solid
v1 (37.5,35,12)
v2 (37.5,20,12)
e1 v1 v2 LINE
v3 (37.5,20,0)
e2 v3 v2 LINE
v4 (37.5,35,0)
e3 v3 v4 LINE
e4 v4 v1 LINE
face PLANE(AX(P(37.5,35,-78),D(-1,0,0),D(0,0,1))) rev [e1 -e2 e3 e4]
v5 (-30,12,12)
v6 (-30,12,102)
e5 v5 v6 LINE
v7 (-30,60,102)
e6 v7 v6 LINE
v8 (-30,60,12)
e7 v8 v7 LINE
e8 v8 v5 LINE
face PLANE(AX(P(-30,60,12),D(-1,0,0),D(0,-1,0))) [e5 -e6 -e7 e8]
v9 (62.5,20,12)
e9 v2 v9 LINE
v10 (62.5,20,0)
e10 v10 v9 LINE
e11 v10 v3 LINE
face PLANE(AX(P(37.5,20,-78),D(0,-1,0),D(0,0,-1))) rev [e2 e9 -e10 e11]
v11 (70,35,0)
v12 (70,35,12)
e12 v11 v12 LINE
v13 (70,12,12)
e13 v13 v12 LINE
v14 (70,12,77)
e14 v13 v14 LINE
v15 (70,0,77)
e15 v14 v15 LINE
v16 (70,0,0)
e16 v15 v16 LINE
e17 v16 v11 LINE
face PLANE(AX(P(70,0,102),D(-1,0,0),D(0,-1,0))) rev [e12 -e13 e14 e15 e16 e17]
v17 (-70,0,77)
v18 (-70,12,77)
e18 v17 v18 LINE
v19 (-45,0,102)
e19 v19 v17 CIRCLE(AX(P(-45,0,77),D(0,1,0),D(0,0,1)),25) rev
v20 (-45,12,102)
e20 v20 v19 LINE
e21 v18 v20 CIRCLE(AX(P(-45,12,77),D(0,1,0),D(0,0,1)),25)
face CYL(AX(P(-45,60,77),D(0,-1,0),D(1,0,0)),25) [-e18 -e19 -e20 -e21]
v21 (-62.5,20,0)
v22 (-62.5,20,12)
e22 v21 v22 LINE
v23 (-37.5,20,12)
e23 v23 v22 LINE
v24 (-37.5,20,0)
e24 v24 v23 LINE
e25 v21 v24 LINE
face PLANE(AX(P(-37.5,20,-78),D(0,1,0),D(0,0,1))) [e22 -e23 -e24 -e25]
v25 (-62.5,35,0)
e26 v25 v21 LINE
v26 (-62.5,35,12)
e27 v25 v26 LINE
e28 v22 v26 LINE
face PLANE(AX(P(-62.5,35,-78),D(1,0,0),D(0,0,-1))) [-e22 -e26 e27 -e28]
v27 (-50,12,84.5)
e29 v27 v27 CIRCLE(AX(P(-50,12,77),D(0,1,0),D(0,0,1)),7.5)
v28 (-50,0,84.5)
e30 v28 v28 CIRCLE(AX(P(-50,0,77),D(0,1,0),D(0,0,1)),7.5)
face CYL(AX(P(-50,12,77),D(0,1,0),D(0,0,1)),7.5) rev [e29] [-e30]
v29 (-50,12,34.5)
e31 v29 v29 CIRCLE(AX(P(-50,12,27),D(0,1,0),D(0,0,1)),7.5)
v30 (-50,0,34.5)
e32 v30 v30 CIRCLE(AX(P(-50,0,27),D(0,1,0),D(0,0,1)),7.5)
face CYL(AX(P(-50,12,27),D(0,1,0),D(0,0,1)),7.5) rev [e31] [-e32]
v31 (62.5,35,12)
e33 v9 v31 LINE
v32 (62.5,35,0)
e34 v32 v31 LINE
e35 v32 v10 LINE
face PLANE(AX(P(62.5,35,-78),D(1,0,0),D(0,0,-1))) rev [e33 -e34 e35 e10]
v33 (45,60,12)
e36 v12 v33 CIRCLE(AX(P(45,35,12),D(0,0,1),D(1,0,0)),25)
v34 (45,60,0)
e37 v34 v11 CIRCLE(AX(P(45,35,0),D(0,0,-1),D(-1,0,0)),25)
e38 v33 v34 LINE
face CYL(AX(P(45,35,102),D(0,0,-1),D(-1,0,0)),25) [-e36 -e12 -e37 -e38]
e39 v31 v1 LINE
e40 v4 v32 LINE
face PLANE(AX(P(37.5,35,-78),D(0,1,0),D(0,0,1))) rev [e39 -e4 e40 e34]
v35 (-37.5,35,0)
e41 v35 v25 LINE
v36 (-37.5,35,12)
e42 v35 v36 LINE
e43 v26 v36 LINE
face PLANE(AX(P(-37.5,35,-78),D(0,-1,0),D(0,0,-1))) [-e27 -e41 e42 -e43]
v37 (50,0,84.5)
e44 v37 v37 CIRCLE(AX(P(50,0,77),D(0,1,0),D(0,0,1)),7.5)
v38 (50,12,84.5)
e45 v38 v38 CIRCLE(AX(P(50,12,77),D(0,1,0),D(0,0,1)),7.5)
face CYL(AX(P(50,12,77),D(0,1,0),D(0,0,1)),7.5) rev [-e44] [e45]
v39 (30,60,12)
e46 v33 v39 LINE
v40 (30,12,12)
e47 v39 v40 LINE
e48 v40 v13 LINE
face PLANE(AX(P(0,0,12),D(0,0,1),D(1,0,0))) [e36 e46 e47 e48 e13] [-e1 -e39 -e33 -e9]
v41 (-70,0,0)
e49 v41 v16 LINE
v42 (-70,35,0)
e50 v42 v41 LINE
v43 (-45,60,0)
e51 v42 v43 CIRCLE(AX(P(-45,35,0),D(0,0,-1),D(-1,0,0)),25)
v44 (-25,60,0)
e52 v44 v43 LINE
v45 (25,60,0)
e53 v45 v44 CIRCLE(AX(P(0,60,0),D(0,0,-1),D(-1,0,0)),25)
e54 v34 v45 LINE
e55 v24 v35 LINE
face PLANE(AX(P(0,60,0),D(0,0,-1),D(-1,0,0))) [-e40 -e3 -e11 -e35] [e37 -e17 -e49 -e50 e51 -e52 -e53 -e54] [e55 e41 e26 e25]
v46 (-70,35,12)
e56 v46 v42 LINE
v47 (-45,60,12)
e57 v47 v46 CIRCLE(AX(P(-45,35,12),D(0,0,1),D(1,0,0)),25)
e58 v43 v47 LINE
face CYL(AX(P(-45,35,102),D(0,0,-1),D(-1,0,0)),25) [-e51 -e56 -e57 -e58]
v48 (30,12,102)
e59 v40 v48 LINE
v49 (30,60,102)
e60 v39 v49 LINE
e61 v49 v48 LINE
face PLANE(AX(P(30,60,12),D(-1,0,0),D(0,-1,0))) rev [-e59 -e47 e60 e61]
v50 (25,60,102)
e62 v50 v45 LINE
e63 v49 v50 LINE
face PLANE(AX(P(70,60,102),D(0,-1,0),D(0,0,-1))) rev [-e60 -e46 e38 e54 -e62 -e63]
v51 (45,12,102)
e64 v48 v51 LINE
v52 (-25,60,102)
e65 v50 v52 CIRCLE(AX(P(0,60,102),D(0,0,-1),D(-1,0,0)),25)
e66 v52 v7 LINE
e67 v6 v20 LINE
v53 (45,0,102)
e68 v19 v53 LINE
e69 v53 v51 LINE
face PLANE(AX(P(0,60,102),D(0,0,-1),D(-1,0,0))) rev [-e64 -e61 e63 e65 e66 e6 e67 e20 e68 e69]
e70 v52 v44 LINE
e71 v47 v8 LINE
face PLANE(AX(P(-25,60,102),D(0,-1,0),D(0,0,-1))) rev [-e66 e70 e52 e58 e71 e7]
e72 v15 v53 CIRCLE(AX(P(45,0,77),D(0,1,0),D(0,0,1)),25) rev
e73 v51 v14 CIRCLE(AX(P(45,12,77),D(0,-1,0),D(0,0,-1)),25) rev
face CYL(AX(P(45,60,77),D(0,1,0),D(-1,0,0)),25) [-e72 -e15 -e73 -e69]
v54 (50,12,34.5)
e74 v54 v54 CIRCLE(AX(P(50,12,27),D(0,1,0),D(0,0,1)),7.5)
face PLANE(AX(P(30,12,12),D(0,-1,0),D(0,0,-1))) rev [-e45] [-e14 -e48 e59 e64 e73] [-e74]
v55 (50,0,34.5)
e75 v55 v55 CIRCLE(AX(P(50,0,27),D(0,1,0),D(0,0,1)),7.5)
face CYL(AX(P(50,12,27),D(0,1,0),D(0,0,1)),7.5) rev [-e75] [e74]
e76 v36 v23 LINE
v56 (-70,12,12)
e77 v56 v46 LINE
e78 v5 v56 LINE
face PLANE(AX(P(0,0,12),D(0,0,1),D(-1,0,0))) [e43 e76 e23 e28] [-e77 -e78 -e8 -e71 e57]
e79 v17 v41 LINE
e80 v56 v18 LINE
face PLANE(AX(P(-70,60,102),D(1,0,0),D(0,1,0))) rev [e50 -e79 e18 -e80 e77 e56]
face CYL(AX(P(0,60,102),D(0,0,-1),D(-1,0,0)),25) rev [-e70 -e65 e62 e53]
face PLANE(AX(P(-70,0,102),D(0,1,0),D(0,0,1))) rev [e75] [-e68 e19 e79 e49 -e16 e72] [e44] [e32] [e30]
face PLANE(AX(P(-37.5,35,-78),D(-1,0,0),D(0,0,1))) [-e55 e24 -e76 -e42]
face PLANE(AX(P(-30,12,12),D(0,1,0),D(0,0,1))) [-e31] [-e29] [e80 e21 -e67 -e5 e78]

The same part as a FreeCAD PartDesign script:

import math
import FreeCAD as App
import Part
import Sketcher

V = App.Vector
Q = App.Units.Quantity


def edges_at(feature, points):
    """Names of the edges that pass closest to the given points."""
    edges = feature.Shape.Edges
    near = lambda p: min(range(len(edges)), key=lambda i: edges[i].distToShape(Part.Vertex(*p))[0])
    return sorted({f"Edge{near(p) + 1}" for p in points})


def add_polygon(sketch, points):
    """Adds a closed chain of lines whose ends are joined by coincident constraints."""
    first, n = sketch.GeometryCount, len(points)
    for a, b in zip(points, points[1:] + points[:1]):
        sketch.addGeometry(Part.LineSegment(App.Vector(*a, 0), App.Vector(*b, 0)), False)
    for i in range(n):
        sketch.addConstraint(Sketcher.Constraint("Coincident", first + i, 2, first + (i + 1) % n, 1))

doc = App.newDocument("Part")
body = doc.addObject("PartDesign::Body", "Body")

# Sketch on XY plane
sketch1 = body.newObject("Sketcher::SketchObject", "Sketch")
sketch1.AttachmentSupport = (doc.getObject("XY_Plane"), [""])
sketch1.MapMode = "FlatFace"
sketch1.addGeometry(Part.LineSegment(V(-70, 0, 0), V(70, 0, 0)), False)
sketch1.addGeometry(Part.LineSegment(V(70, 0, 0), V(70, 60, 0)), False)
sketch1.addGeometry(Part.LineSegment(V(70, 60, 0), V(25, 60, 0)), False)
sketch1.addGeometry(Part.ArcOfCircle(Part.Circle(V(0, 60, 0), V(0, 0, 1), 25), math.radians(180), math.radians(360)), False)
sketch1.addGeometry(Part.LineSegment(V(-25, 60, 0), V(-70, 60, 0)), False)
sketch1.addGeometry(Part.LineSegment(V(-70, 60, 0), V(-70, 0, 0)), False)
sketch1.addConstraint(Sketcher.Constraint("Coincident", 0, 2, 1, 1))
sketch1.addConstraint(Sketcher.Constraint("Coincident", 1, 2, 2, 1))
sketch1.addConstraint(Sketcher.Constraint("Coincident", 2, 2, 3, 2))
sketch1.addConstraint(Sketcher.Constraint("Coincident", 3, 1, 4, 1))
sketch1.addConstraint(Sketcher.Constraint("Coincident", 4, 2, 5, 1))
sketch1.addConstraint(Sketcher.Constraint("Coincident", 5, 2, 0, 1))
sketch1.addConstraint(Sketcher.Constraint("Horizontal", 0))
sketch1.addConstraint(Sketcher.Constraint("Vertical", 1))
sketch1.addConstraint(Sketcher.Constraint("Horizontal", 2))
sketch1.addConstraint(Sketcher.Constraint("Horizontal", 4))
sketch1.addConstraint(Sketcher.Constraint("Vertical", 5))
sketch1.addConstraint(Sketcher.Constraint("Symmetric", 0, 2, 5, 2, -1, 1))
sketch1.addConstraint(Sketcher.Constraint("Symmetric", 2, 2, 3, 1, -2))
sketch1.addConstraint(Sketcher.Constraint("Horizontal", 3, 3, 1, 2))
sketch1.addConstraint(Sketcher.Constraint("Radius", 3, Q("25 mm")))
sketch1.addConstraint(Sketcher.Constraint("DistanceX", 0, 1, 0, 2, Q("140 mm")))
sketch1.addConstraint(Sketcher.Constraint("DistanceY", 1, 1, 1, 2, Q("60 mm")))
pad1 = body.newObject("PartDesign::Pad", "Pad")
pad1.Profile = sketch1
pad1.Length = 102

# Sketch on XY plane
sketch2 = body.newObject("Sketcher::SketchObject", "Sketch001")
sketch2.AttachmentSupport = (doc.getObject("XY_Plane"), [""])
sketch2.MapMode = "FlatFace"
sketch2.AttachmentOffset = App.Placement(V(0, 0, 102), App.Rotation())
add_polygon(sketch2, [(30, 60), (30, 12), (70, 12), (70, 60)])  # lines 0-3
sketch2.addConstraint(Sketcher.Constraint("Vertical", 0))
sketch2.addConstraint(Sketcher.Constraint("Horizontal", 1))
sketch2.addConstraint(Sketcher.Constraint("Vertical", 2))
sketch2.addConstraint(Sketcher.Constraint("Horizontal", 3))
sketch2.addConstraint(Sketcher.Constraint("DistanceX", 1, 1, 1, 2, Q("40 mm")))
sketch2.addConstraint(Sketcher.Constraint("DistanceY", 0, 2, 0, 1, Q("48 mm")))
sketch2.addConstraint(Sketcher.Constraint("DistanceX", -1, 1, 0, 2, Q("30 mm")))
sketch2.addConstraint(Sketcher.Constraint("DistanceY", -1, 1, 0, 2, Q("12 mm")))
pocket1 = body.newObject("PartDesign::Pocket", "Pocket")
pocket1.Profile = sketch2
pocket1.Length = 90
doc.recompute()

mirrored = body.newObject("PartDesign::Mirrored", "Mirrored")
mirrored.Originals = [pocket1]
mirrored.MirrorPlane = (doc.getObject("YZ_Plane"), [""])
body.Tip = mirrored
doc.recompute()

fillet = body.newObject("PartDesign::Fillet", "Fillet")
fillet.Base = (mirrored, edges_at(mirrored, [(70, 60, 6), (-70, 60, 6)]))
fillet.Radius = 25
doc.recompute()

fillet2 = body.newObject("PartDesign::Fillet", "Fillet001")
fillet2.Base = (fillet, edges_at(fillet, [(70, 6, 102), (-70, 6, 102)]))
fillet2.Radius = 25

# Sketch on XY plane
sketch3 = body.newObject("Sketcher::SketchObject", "Sketch002")
sketch3.AttachmentSupport = (doc.getObject("XY_Plane"), [""])
sketch3.MapMode = "FlatFace"
sketch3.AttachmentOffset = App.Placement(V(0, 0, 12), App.Rotation())
add_polygon(sketch3, [(37.5, 35), (37.5, 20), (62.5, 20), (62.5, 35)])  # lines 0-3
sketch3.addConstraint(Sketcher.Constraint("Vertical", 0))
sketch3.addConstraint(Sketcher.Constraint("Horizontal", 1))
sketch3.addConstraint(Sketcher.Constraint("Vertical", 2))
sketch3.addConstraint(Sketcher.Constraint("Horizontal", 3))
sketch3.addConstraint(Sketcher.Constraint("DistanceX", 1, 1, 1, 2, Q("25 mm")))
sketch3.addConstraint(Sketcher.Constraint("DistanceY", 0, 2, 0, 1, Q("15 mm")))
sketch3.addConstraint(Sketcher.Constraint("DistanceY", -1, 1, 0, 2, Q("20 mm")))
sketch3.addConstraint(Sketcher.Constraint("DistanceX", -1, 1, 0, 2, Q("37.5 mm")))
pocket2 = body.newObject("PartDesign::Pocket", "Pocket001")
pocket2.Profile = sketch3
pocket2.Length = 90
doc.recompute()

mirrored2 = body.newObject("PartDesign::Mirrored", "Mirrored001")
mirrored2.Originals = [pocket2]
mirrored2.MirrorPlane = (doc.getObject("YZ_Plane"), [""])
body.Tip = mirrored2

# Sketch on XZ plane
sketch4 = body.newObject("Sketcher::SketchObject", "Sketch003")
sketch4.AttachmentSupport = (doc.getObject("XZ_Plane"), [""])
sketch4.MapMode = "FlatFace"
sketch4.AttachmentOffset = App.Placement(V(0, 0, -12), App.Rotation())
sketch4.addGeometry(Part.Circle(V(50, 77, 0), V(0, 0, 1), 7.5), False)
sketch4.addGeometry(Part.Circle(V(50, 27, 0), V(0, 0, 1), 7.5), False)
sketch4.addGeometry(Part.Circle(V(-50, 27, 0), V(0, 0, 1), 7.5), False)
sketch4.addGeometry(Part.Circle(V(-50, 77, 0), V(0, 0, 1), 7.5), False)
sketch4.addConstraint(Sketcher.Constraint("Equal", 0, 1))
sketch4.addConstraint(Sketcher.Constraint("Equal", 1, 2))
sketch4.addConstraint(Sketcher.Constraint("Equal", 2, 3))
sketch4.addConstraint(Sketcher.Constraint("Symmetric", 1, 3, 2, 3, -2))
sketch4.addConstraint(Sketcher.Constraint("Symmetric", 0, 3, 3, 3, -2))
sketch4.addConstraint(Sketcher.Constraint("Vertical", 0, 3, 1, 3))
sketch4.addConstraint(Sketcher.Constraint("Diameter", 0, Q("15 mm")))
sketch4.addConstraint(Sketcher.Constraint("DistanceX", -1, 1, 0, 3, Q("50 mm")))
sketch4.addConstraint(Sketcher.Constraint("DistanceY", -1, 1, 0, 3, Q("77 mm")))
sketch4.addConstraint(Sketcher.Constraint("DistanceY", -1, 1, 1, 3, Q("27 mm")))
doc.recompute()
hole = body.newObject("PartDesign::Hole", "Hole")
hole.Profile = sketch4
hole.ThreadType = "None"
hole.Diameter = 15
hole.DepthType = "ThroughAll"
hole.Reversed = True

doc.recompute()
